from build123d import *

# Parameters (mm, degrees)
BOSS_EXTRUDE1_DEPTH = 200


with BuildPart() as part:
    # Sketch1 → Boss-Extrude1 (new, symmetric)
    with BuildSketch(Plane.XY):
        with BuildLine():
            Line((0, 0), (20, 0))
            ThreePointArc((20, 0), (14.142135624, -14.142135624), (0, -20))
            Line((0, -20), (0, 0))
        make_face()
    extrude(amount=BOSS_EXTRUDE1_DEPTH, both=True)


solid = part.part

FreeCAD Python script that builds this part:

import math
import FreeCAD as App
import Part
import Sketcher
Q = App.Units.Quantity

doc = App.newDocument("Part")
params = doc.addObject("Spreadsheet::Sheet", "Params")
for row, (alias, value) in enumerate([
    ("sketch1_radius", "20 mm"),
    ("pad1_length", "400 mm"),
], start=1):
    params.set(f"A{row}", alias)
    params.set(f"B{row}", "=" + value)
    params.setAlias(f"B{row}", alias)

body = doc.addObject("PartDesign::Body", "Body")

# Sketch on XY plane
sketch1 = body.newObject("Sketcher::SketchObject", "Sketch")
sketch1.AttachmentSupport = (doc.getObject("XY_Plane"), [""])
sketch1.MapMode = "FlatFace"
sketch1.addGeometry(Part.LineSegment(App.Vector(20, 0, 0), App.Vector(0, 0, 0)), False)
sketch1.addGeometry(Part.LineSegment(App.Vector(0, 0, 0), App.Vector(0, -20, 0)), False)
sketch1.addGeometry(Part.ArcOfCircle(Part.Circle(App.Vector(0, 0, 0), App.Vector(0, 0, 1), 20), math.radians(-90), math.radians(0)), False)
sketch1.addConstraint(Sketcher.Constraint("Coincident", 0, 2, 1, 1))
sketch1.addConstraint(Sketcher.Constraint("Coincident", 1, 2, 2, 1))
sketch1.addConstraint(Sketcher.Constraint("Coincident", 2, 2, 0, 1))
sketch1.addConstraint(Sketcher.Constraint("Horizontal", 0))
sketch1.addConstraint(Sketcher.Constraint("Vertical", 1))
sketch1.addConstraint(Sketcher.Constraint("Coincident", 2, 3, -1, 1))
sketch1.addConstraint(Sketcher.Constraint("Coincident", 0, 2, -1, 1))
sketch1.addConstraint(Sketcher.Constraint("Radius", 2, Q("20 mm")))
sketch1.setExpression("Constraints[7]", "Params.sketch1_radius")
pad1 = body.newObject("PartDesign::Pad", "Pad")
pad1.Profile = sketch1
pad1.setExpression("Length", "Params.pad1_length")
pad1.Midplane = True

doc.recompute()
